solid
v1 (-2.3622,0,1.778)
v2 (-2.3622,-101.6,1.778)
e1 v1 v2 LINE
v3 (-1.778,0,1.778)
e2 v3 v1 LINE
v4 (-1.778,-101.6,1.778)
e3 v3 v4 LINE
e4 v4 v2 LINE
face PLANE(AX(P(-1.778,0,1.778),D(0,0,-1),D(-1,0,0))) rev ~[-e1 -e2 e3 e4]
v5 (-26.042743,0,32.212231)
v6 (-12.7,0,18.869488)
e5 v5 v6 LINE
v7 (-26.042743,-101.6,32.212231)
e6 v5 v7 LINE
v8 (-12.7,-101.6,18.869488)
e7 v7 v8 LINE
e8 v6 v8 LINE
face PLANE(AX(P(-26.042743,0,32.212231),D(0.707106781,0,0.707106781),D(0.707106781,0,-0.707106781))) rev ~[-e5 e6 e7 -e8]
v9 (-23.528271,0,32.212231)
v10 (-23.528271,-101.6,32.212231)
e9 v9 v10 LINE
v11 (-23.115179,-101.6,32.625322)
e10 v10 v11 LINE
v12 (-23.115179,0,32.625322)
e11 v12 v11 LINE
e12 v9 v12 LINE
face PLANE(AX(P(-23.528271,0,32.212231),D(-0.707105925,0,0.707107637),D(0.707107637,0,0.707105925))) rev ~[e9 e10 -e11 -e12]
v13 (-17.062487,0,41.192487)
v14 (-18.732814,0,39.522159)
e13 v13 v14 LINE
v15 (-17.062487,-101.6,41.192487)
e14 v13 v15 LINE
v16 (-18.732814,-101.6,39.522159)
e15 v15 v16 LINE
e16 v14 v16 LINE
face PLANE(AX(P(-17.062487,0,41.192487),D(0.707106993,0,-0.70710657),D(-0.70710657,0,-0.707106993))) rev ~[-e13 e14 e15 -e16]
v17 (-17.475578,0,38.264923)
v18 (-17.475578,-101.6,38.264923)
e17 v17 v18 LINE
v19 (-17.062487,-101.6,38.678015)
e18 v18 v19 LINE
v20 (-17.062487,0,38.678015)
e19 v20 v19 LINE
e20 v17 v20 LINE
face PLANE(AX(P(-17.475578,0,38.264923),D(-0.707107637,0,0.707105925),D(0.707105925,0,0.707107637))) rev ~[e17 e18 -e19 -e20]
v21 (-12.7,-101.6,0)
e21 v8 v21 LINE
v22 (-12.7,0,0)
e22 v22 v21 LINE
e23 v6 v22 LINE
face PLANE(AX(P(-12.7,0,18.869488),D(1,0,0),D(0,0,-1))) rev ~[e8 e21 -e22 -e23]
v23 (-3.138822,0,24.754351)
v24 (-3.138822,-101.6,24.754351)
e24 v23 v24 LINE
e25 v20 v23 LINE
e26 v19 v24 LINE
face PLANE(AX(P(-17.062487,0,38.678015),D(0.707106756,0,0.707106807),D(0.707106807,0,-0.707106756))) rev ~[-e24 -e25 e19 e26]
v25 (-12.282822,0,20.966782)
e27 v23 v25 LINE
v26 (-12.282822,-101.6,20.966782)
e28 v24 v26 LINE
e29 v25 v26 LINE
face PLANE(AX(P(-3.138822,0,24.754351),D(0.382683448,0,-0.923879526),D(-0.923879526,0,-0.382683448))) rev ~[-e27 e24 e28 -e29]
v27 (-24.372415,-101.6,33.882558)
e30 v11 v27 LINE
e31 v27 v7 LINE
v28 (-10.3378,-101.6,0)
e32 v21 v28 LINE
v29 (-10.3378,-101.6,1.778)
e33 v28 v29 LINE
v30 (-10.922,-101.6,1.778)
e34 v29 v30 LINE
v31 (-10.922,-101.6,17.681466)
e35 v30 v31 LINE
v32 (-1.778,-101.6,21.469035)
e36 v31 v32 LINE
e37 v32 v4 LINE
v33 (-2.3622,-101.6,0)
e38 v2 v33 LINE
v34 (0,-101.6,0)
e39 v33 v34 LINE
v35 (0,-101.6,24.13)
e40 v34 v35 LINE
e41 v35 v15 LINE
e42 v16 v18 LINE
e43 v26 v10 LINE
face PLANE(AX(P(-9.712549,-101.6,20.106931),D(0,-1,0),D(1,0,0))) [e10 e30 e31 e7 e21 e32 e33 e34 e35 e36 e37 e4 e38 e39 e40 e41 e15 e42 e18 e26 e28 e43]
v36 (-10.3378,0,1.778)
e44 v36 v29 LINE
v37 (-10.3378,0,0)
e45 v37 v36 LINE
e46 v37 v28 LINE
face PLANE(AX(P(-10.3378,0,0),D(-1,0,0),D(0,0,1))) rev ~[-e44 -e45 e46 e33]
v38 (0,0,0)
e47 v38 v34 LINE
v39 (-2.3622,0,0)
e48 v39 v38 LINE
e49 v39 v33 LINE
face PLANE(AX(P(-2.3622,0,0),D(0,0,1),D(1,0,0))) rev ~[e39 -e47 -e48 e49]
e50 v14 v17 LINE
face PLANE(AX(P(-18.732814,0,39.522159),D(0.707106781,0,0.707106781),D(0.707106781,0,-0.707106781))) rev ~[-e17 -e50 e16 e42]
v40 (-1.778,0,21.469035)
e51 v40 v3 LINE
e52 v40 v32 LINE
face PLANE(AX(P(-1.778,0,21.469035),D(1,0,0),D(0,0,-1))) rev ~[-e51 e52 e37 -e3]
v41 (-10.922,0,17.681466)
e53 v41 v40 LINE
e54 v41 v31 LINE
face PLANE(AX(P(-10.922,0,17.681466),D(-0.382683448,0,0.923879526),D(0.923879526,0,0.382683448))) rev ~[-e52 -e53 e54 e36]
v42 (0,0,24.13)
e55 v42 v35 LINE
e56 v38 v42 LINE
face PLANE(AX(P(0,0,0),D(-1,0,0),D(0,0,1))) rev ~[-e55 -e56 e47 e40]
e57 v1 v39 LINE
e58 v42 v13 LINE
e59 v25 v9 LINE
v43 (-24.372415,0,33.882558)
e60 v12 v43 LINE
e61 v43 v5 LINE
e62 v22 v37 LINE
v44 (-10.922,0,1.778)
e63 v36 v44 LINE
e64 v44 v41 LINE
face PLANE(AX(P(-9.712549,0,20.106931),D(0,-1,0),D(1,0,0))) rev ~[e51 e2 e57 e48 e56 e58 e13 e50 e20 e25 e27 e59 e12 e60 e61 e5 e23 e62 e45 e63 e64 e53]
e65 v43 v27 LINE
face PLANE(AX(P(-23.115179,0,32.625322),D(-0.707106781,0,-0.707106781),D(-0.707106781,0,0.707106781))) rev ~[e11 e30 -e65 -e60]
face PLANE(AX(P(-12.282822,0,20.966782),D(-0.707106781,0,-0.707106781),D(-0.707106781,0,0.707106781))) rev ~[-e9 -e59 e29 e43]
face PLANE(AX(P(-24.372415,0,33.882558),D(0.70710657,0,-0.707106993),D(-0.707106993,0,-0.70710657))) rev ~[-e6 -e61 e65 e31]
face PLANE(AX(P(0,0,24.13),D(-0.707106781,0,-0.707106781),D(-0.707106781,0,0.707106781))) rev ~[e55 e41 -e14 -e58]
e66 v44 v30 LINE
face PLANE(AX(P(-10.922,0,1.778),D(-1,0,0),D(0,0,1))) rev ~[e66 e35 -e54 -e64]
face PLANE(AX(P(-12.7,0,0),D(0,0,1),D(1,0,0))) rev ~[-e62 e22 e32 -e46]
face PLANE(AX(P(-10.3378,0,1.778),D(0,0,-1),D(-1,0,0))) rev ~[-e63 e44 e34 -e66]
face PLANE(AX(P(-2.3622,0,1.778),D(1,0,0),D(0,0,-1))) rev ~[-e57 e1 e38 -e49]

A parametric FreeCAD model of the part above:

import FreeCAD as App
import Part
import Sketcher
from FreeCAD import Vector
Q = App.Units.Quantity


def add_polygon(sketch, points):
    """Adds a closed chain of lines whose ends are joined by coincident constraints."""
    first, n = sketch.GeometryCount, len(points)
    for a, b in zip(points, points[1:] + points[:1]):
        sketch.addGeometry(Part.LineSegment(App.Vector(*a, 0), App.Vector(*b, 0)), False)
    for i in range(n):
        sketch.addConstraint(Sketcher.Constraint("Coincident", first + i, 2, first + (i + 1) % n, 1))

doc = App.newDocument("Part")
body = doc.addObject("PartDesign::Body", "Body")

# Sketch on XZ plane
sketch1 = body.newObject("Sketcher::SketchObject", "Sketch")
sketch1.AttachmentSupport = (doc.getObject("XZ_Plane"), [""])
sketch1.MapMode = "FlatFace"
add_polygon(sketch1, [(-2.3622, 0), (0, 0), (0, 24.13), (-17.062487, 41.192487), (-18.732814, 39.522159), (-17.475578, 38.264923), (-17.062487, 38.678015), (-3.138822, 24.754351), (-12.282822, 20.966782), (-23.528271, 32.212231), (-23.115179, 32.625322), (-24.372415, 33.882558), (-26.042743, 32.212231), (-12.7, 18.869488), (-12.7, 0), (-10.3378, 0), (-10.3378, 1.778), (-10.922, 1.778), (-10.922, 17.681466), (-1.778, 21.469035), (-1.778, 1.778), (-2.3622, 1.778)])  # lines 0-21
sketch1.addConstraint([
    Sketcher.Constraint("Horizontal", 0),
    Sketcher.Constraint("Vertical", 1),
    Sketcher.Constraint("Vertical", 13),
    Sketcher.Constraint("Horizontal", 14),
    Sketcher.Constraint("Vertical", 15),
    Sketcher.Constraint("Horizontal", 16),
    Sketcher.Constraint("Vertical", 17),
    Sketcher.Constraint("Vertical", 19),
    Sketcher.Constraint("Horizontal", 20),
    Sketcher.Constraint("Vertical", 21),
    Sketcher.Constraint("Coincident", 0, 2, -1, 1),
    Sketcher.Constraint("PointOnObject", 13, 2, -1),
    Sketcher.Constraint("Perpendicular", 2, 3),
    Sketcher.Constraint("Perpendicular", 3, 4),
    Sketcher.Constraint("Perpendicular", 4, 5),
    Sketcher.Constraint("Perpendicular", 5, 6),
    Sketcher.Constraint("Parallel", 6, 8),
    Sketcher.Constraint("Perpendicular", 8, 9),
    Sketcher.Constraint("Perpendicular", 9, 10),
    Sketcher.Constraint("Perpendicular", 10, 11),
    Sketcher.Constraint("Perpendicular", 11, 12),
    Sketcher.Constraint("Parallel", 7, 18),
    Sketcher.Constraint("Horizontal", 8, 2, 11, 2),
    Sketcher.Constraint("Horizontal", 16, 2, 19, 2),
    Sketcher.Constraint("Vertical", 2, 2, 5, 2),
    Sketcher.Constraint("Equal", 0, 14),
    Sketcher.Constraint("Equal", 16, 20),
    Sketcher.Constraint("Equal", 5, 9),
    Sketcher.Constraint("Equal", 4, 10),
    Sketcher.Constraint("Equal", 3, 11),
    Sketcher.Constraint("Equal", 7, 18),
    Sketcher.Constraint("DistanceY", 1, 1, 1, 2, Q("0.95 in")),
    Sketcher.Constraint("DistanceY", 15, 1, 15, 2, Q("0.07 in")),
    Sketcher.Constraint("DistanceX", 12, 2, -1, 1, Q("0.5 in")),
    Sketcher.Constraint("Angle", 7, Q("-157.499999 deg")),
    Sketcher.Constraint("Distance", 2, Q("0.95 in")),
    Sketcher.Constraint("Distance", 4, Q("0.07 in")),
    Sketcher.Constraint("DistanceX", 0, 1, 0, 2, Q("0.093 in")),
    Sketcher.Constraint("DistanceX", 16, 2, 16, 1, Q("0.023 in")),
    Sketcher.Constraint("Distance", 3, Q("0.093 in")),
    Sketcher.Constraint("DistanceX", 9, 2, 4, 2, 5.639601),
    Sketcher.Constraint("DistanceY", 17, 1, 17, 2, 15.903466),
    Sketcher.Constraint("DistanceX", 6, 2, -1, 1, 3.138822),
])
pad1 = body.newObject("PartDesign::Pad", "Pad")
pad1.Profile = sketch1
pad1.Length = Q("4 in")

doc.recompute()
